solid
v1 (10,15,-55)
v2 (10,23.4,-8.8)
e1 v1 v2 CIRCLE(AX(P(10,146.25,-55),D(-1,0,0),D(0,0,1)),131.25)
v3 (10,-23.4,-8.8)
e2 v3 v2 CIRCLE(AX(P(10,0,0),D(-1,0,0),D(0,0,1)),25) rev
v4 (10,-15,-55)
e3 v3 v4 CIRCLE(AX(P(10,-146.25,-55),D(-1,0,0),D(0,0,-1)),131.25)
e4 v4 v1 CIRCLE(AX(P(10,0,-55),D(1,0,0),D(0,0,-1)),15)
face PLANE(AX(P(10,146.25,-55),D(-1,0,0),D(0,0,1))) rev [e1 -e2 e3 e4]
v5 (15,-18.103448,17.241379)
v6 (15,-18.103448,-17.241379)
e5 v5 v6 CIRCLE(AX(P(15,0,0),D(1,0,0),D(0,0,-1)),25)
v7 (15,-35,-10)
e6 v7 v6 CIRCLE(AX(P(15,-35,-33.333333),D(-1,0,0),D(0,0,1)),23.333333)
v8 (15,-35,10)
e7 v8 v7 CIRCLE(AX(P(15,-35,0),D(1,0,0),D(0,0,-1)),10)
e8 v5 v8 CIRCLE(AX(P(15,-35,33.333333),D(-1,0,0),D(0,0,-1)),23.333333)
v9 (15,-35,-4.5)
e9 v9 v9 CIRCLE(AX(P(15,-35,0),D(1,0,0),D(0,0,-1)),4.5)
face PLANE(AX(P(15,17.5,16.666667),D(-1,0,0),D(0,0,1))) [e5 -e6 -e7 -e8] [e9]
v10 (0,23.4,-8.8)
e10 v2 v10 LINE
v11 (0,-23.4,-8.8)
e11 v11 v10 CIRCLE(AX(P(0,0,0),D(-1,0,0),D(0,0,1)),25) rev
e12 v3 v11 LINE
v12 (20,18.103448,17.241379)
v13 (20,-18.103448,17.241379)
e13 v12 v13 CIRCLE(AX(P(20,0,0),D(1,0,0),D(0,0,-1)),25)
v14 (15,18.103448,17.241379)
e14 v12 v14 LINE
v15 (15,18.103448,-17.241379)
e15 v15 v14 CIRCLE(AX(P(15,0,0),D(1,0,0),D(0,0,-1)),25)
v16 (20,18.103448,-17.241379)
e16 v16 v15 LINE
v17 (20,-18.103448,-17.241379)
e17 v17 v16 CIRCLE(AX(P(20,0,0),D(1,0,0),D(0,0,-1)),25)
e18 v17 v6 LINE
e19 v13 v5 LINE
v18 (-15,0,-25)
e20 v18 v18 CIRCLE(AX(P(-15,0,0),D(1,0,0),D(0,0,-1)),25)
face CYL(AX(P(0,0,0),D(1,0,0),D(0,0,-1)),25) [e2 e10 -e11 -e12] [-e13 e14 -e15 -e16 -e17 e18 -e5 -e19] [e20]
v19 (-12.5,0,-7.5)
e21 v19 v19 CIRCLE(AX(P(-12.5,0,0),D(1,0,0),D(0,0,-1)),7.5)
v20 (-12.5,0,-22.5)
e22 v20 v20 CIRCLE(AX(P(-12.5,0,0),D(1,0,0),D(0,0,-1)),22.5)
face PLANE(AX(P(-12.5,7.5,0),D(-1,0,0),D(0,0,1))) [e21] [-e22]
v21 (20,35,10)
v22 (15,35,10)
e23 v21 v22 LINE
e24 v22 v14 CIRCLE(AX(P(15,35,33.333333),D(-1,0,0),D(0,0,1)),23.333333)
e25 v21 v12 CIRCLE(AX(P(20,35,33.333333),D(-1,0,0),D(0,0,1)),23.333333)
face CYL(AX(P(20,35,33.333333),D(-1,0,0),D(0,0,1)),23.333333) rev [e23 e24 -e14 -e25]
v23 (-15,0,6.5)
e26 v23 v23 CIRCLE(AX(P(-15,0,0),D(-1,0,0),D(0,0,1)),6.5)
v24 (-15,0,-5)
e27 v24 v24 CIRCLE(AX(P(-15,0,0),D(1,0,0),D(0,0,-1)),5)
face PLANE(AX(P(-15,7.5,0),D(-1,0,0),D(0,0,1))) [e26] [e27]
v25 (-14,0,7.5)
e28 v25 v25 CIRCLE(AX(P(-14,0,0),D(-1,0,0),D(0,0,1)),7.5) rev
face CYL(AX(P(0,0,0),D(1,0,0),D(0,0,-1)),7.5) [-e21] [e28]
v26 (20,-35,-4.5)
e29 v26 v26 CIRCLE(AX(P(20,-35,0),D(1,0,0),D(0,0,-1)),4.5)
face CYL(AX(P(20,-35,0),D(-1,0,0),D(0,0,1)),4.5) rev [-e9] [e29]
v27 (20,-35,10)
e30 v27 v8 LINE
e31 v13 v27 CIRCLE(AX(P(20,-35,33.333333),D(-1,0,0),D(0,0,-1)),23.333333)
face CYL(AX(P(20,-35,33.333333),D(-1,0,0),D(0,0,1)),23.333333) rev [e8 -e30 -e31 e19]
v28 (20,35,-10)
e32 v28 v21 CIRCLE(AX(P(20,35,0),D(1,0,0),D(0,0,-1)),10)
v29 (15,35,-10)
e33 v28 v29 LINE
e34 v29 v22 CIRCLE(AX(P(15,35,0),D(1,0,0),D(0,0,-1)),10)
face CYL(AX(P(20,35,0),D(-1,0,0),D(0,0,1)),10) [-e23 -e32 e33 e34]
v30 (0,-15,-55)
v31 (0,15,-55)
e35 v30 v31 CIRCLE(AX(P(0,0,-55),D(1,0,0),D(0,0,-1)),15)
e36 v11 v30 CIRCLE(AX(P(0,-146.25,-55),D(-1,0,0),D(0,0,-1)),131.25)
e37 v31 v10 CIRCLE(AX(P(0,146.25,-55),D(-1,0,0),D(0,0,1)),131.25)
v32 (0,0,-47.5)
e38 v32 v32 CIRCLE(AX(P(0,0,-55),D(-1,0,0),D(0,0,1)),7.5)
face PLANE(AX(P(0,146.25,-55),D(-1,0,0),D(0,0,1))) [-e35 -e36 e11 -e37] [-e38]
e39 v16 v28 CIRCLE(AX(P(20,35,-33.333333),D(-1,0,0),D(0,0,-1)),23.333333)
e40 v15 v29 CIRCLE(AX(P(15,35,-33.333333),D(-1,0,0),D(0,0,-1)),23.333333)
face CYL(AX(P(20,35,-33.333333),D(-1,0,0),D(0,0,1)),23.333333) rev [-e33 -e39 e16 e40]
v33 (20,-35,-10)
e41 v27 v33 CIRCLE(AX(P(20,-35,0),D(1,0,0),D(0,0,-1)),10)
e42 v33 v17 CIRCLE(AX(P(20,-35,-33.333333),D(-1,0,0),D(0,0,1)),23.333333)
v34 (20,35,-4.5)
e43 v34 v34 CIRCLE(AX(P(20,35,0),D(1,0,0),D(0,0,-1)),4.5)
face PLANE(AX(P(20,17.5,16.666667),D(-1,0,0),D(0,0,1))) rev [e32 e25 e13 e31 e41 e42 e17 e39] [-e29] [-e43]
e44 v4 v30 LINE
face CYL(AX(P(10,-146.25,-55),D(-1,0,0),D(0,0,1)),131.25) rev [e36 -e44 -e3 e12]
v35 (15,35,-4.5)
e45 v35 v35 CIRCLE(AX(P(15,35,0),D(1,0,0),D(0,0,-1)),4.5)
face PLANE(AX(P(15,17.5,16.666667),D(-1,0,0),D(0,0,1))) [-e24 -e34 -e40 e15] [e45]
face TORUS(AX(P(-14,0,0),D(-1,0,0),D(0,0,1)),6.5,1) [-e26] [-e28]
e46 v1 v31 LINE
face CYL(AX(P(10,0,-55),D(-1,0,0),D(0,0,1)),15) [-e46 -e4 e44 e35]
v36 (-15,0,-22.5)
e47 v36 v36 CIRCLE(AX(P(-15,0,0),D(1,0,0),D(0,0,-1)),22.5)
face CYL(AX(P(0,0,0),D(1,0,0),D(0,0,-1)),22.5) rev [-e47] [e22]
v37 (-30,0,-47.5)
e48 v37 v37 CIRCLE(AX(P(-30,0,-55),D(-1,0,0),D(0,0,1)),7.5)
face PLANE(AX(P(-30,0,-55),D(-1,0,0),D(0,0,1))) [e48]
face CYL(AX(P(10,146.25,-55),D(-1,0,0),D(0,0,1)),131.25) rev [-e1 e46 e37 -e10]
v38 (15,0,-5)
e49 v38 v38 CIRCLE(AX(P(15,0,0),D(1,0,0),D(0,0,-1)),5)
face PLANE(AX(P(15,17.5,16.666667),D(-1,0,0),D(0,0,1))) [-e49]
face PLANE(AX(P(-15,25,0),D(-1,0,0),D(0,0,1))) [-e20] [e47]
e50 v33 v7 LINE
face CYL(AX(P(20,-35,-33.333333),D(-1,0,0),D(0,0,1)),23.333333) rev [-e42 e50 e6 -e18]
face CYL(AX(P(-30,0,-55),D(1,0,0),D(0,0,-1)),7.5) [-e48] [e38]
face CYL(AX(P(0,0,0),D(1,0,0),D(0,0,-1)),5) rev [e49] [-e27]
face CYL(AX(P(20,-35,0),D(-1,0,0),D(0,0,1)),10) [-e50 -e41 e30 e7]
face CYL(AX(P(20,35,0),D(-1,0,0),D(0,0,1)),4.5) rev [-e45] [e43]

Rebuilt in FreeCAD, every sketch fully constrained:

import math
import FreeCAD as App
import Part
import Sketcher
from FreeCAD import Vector
Q = App.Units.Quantity


def edges_at(feature, points):
    """Names of the edges that pass closest to the given points."""
    edges = feature.Shape.Edges
    near = lambda p: min(range(len(edges)), key=lambda i: edges[i].distToShape(Part.Vertex(*p))[0])
    return sorted({f"Edge{near(p) + 1}" for p in points})


def add_polygon(sketch, points):
    """Adds a closed chain of lines whose ends are joined by coincident constraints."""
    first, n = sketch.GeometryCount, len(points)
    for a, b in zip(points, points[1:] + points[:1]):
        sketch.addGeometry(Part.LineSegment(App.Vector(*a, 0), App.Vector(*b, 0)), False)
    for i in range(n):
        sketch.addConstraint(Sketcher.Constraint("Coincident", first + i, 2, first + (i + 1) % n, 1))

doc = App.newDocument("Part")
body = doc.addObject("PartDesign::Body", "Body")

# Sketch on XY plane
sketch1 = doc.addObject("Sketcher::SketchObject", "Sketch")
body.addObject(sketch1)
sketch1.AttachmentSupport = (doc.XY_Plane, [""])
sketch1.MapMode = "FlatFace"
add_polygon(sketch1, [(15, 25), (-15, 25), (-15, 22.5), (-12.5, 22.5), (-12.5, 7.5), (-15, 7.5), (-15, 5), (15, 5)])  # lines 0-7
sketch1.addConstraint(Sketcher.Constraint("Horizontal", 0))
sketch1.addConstraint(Sketcher.Constraint("Vertical", 1))
sketch1.addConstraint(Sketcher.Constraint("Horizontal", 2))
sketch1.addConstraint(Sketcher.Constraint("Vertical", 3))
sketch1.addConstraint(Sketcher.Constraint("Horizontal", 4))
sketch1.addConstraint(Sketcher.Constraint("Vertical", 5))
sketch1.addConstraint(Sketcher.Constraint("Horizontal", 6))
sketch1.addConstraint(Sketcher.Constraint("Vertical", 7))
sketch1.addConstraint(Sketcher.Constraint("Vertical", 1, 2, 4, 2))
sketch1.addConstraint(Sketcher.Constraint("Equal", 4, 1))
sketch1.addConstraint(Sketcher.Constraint("Equal", 1, 5))
sketch1.addConstraint(Sketcher.Constraint("DistanceX", 0, 2, 0, 1, Q("30 mm")))
sketch1.addConstraint(Sketcher.Constraint("DistanceY", 3, 2, 3, 1, Q("15 mm")))
sketch1.addConstraint(Sketcher.Constraint("DistanceY", 7, 1, 7, 2, Q("20 mm")))
sketch1.addConstraint(Sketcher.Constraint("DistanceX", 0, 2, -1, 1, Q("15 mm")))
sketch1.addConstraint(Sketcher.Constraint("DistanceY", -1, 1, 0, 2, Q("25 mm")))
revolution = doc.addObject("PartDesign::Revolution", "Revolution")
body.addObject(revolution)
revolution.Profile = sketch1
revolution.ReferenceAxis = (sketch1, ["H_Axis"])
revolution.Angle = 360
doc.recompute()

fillet = doc.addObject("PartDesign::Fillet", "Fillet")
body.addObject(fillet)
fillet.Base = (revolution, edges_at(revolution, [(-15, 0, 7.5)]))
fillet.Radius = 1

# Sketch on YZ plane
sketch2 = doc.addObject("Sketcher::SketchObject", "Sketch001")
body.addObject(sketch2)
sketch2.AttachmentSupport = (doc.YZ_Plane, [""])
sketch2.MapMode = "FlatFace"
sketch2.AttachmentOffset = App.Placement(Vector(0, 0, 15), App.Rotation())
sketch2.addGeometry(Part.ArcOfCircle(Part.Circle(Vector(35, 0, 0), Vector(0, 0, 1), 10), math.radians(-90), math.radians(90)), False)
sketch2.addGeometry(Part.ArcOfCircle(Part.Circle(Vector(35, 33.3, 0), Vector(0, 0, 1), 23.3), math.radians(-136), math.radians(-90)), False)
sketch2.addGeometry(Part.ArcOfCircle(Part.Circle(Vector(0, 0, 0), Vector(0, 0, 1), 25), math.radians(44), math.radians(136)), False)
sketch2.addGeometry(Part.ArcOfCircle(Part.Circle(Vector(-35, 33.3, 0), Vector(0, 0, 1), 23.3), math.radians(-90), math.radians(-44)), False)
sketch2.addGeometry(Part.ArcOfCircle(Part.Circle(Vector(-35, 0, 0), Vector(0, 0, 1), 10), math.radians(90), math.radians(270)), False)
sketch2.addGeometry(Part.ArcOfCircle(Part.Circle(Vector(-35, -33.3, 0), Vector(0, 0, 1), 23.3), math.radians(44), math.radians(90)), False)
sketch2.addGeometry(Part.ArcOfCircle(Part.Circle(Vector(0, 0, 0), Vector(0, 0, 1), 25), math.radians(-136), math.radians(-44)), False)
sketch2.addGeometry(Part.ArcOfCircle(Part.Circle(Vector(35, -33.3, 0), Vector(0, 0, 1), 23.3), math.radians(90), math.radians(136)), False)
sketch2.addGeometry(Part.Circle(Vector(-35, 0, 0), Vector(0, 0, 1), 4.5), False)
sketch2.addGeometry(Part.Circle(Vector(35, 0, 0), Vector(0, 0, 1), 4.5), False)
sketch2.addConstraint(Sketcher.Constraint("Tangent", 0, 2, 1, 2))
sketch2.addConstraint(Sketcher.Constraint("Tangent", 1, 1, 2, 1))
sketch2.addConstraint(Sketcher.Constraint("Tangent", 2, 2, 3, 2))
sketch2.addConstraint(Sketcher.Constraint("Tangent", 3, 1, 4, 1))
sketch2.addConstraint(Sketcher.Constraint("Tangent", 4, 2, 5, 2))
sketch2.addConstraint(Sketcher.Constraint("Tangent", 5, 1, 6, 1))
sketch2.addConstraint(Sketcher.Constraint("Tangent", 6, 2, 7, 2))
sketch2.addConstraint(Sketcher.Constraint("Tangent", 7, 1, 0, 1))
sketch2.addConstraint(Sketcher.Constraint("Coincident", 2, 3, -1, 1))
sketch2.addConstraint(Sketcher.Constraint("Coincident", 6, 3, -1, 1))
sketch2.addConstraint(Sketcher.Constraint("Coincident", 8, 3, 4, 3))
sketch2.addConstraint(Sketcher.Constraint("Coincident", 9, 3, 0, 3))
sketch2.addConstraint(Sketcher.Constraint("Equal", 1, 3))
sketch2.addConstraint(Sketcher.Constraint("Equal", 0, 4))
sketch2.addConstraint(Sketcher.Constraint("Equal", 3, 5))
sketch2.addConstraint(Sketcher.Constraint("Equal", 2, 6))
sketch2.addConstraint(Sketcher.Constraint("Equal", 5, 7))
sketch2.addConstraint(Sketcher.Constraint("Equal", 8, 9))
sketch2.addConstraint(Sketcher.Constraint("Symmetric", 0, 3, 4, 3, -1, 1))
sketch2.addConstraint(Sketcher.Constraint("PointOnObject", 0, 3, -1))
sketch2.addConstraint(Sketcher.Constraint("Vertical", 0, 3, 1, 3))
sketch2.addConstraint(Sketcher.Constraint("Diameter", 8, Q("9 mm")))
sketch2.addConstraint(Sketcher.Constraint("Radius", 0, Q("10 mm")))
sketch2.addConstraint(Sketcher.Constraint("Radius", 2, Q("25 mm")))
sketch2.addConstraint(Sketcher.Constraint("DistanceX", -1, 1, 0, 3, Q("35 mm")))
pad1 = doc.addObject("PartDesign::Pad", "Pad")
body.addObject(pad1)
pad1.Profile = sketch2
pad1.Length = 5

# Sketch on YZ plane
sketch3 = doc.addObject("Sketcher::SketchObject", "Sketch002")
body.addObject(sketch3)
sketch3.AttachmentSupport = (doc.YZ_Plane, [""])
sketch3.MapMode = "FlatFace"
sketch3.addGeometry(Part.LineSegment(Vector(23, -9, 0), Vector(-23, -9, 0)), False)
sketch3.addGeometry(Part.ArcOfCircle(Part.Circle(Vector(-146, -55, 0), Vector(0, 0, 1), 131), math.radians(0), math.radians(21)), False)
sketch3.addGeometry(Part.ArcOfCircle(Part.Circle(Vector(0, -55, 0), Vector(0, 0, 1), 15), math.radians(180), math.radians(360)), False)
sketch3.addGeometry(Part.ArcOfCircle(Part.Circle(Vector(146, -55, 0), Vector(0, 0, 1), 131), math.radians(159), math.radians(180)), False)
sketch3.addConstraint(Sketcher.Constraint("Coincident", 0, 2, 1, 2))
sketch3.addConstraint(Sketcher.Constraint("Tangent", 1, 1, 2, 1))
sketch3.addConstraint(Sketcher.Constraint("Tangent", 2, 2, 3, 2))
sketch3.addConstraint(Sketcher.Constraint("Coincident", 3, 1, 0, 1))
sketch3.addConstraint(Sketcher.Constraint("Horizontal", 0))
sketch3.addConstraint(Sketcher.Constraint("Equal", 1, 3))
sketch3.addConstraint(Sketcher.Constraint("Symmetric", 1, 3, 3, 3, -2))
sketch3.addConstraint(Sketcher.Constraint("Horizontal", 1, 3, 2, 3))
sketch3.addConstraint(Sketcher.Constraint("Radius", 2, Q("15 mm")))
sketch3.addConstraint(Sketcher.Constraint("Radius", 1, Q("131.25 mm")))
sketch3.addConstraint(Sketcher.Constraint("DistanceX", 0, 2, 0, 1, Q("46.8 mm")))
sketch3.addConstraint(Sketcher.Constraint("DistanceY", 1, 3, -1, 1, Q("55 mm")))
pad2 = doc.addObject("PartDesign::Pad", "Pad001")
body.addObject(pad2)
pad2.Profile = sketch3
pad2.Length = 10

# Sketch on YZ plane
sketch4 = doc.addObject("Sketcher::SketchObject", "Sketch003")
body.addObject(sketch4)
sketch4.AttachmentSupport = (doc.YZ_Plane, [""])
sketch4.MapMode = "FlatFace"
sketch4.addGeometry(Part.Circle(Vector(0, -55, 0), Vector(0, 0, 1), 8), False)
sketch4.addConstraint(Sketcher.Constraint("PointOnObject", 0, 3, -2))
sketch4.addConstraint(Sketcher.Constraint("Diameter", 0, Q("15 mm")))
sketch4.addConstraint(Sketcher.Constraint("DistanceY", 0, 3, -1, 1, Q("55 mm")))
pad3 = doc.addObject("PartDesign::Pad", "Pad002")
body.addObject(pad3)
pad3.Profile = sketch4
pad3.Length = 30
pad3.Reversed = True

doc.recompute()
